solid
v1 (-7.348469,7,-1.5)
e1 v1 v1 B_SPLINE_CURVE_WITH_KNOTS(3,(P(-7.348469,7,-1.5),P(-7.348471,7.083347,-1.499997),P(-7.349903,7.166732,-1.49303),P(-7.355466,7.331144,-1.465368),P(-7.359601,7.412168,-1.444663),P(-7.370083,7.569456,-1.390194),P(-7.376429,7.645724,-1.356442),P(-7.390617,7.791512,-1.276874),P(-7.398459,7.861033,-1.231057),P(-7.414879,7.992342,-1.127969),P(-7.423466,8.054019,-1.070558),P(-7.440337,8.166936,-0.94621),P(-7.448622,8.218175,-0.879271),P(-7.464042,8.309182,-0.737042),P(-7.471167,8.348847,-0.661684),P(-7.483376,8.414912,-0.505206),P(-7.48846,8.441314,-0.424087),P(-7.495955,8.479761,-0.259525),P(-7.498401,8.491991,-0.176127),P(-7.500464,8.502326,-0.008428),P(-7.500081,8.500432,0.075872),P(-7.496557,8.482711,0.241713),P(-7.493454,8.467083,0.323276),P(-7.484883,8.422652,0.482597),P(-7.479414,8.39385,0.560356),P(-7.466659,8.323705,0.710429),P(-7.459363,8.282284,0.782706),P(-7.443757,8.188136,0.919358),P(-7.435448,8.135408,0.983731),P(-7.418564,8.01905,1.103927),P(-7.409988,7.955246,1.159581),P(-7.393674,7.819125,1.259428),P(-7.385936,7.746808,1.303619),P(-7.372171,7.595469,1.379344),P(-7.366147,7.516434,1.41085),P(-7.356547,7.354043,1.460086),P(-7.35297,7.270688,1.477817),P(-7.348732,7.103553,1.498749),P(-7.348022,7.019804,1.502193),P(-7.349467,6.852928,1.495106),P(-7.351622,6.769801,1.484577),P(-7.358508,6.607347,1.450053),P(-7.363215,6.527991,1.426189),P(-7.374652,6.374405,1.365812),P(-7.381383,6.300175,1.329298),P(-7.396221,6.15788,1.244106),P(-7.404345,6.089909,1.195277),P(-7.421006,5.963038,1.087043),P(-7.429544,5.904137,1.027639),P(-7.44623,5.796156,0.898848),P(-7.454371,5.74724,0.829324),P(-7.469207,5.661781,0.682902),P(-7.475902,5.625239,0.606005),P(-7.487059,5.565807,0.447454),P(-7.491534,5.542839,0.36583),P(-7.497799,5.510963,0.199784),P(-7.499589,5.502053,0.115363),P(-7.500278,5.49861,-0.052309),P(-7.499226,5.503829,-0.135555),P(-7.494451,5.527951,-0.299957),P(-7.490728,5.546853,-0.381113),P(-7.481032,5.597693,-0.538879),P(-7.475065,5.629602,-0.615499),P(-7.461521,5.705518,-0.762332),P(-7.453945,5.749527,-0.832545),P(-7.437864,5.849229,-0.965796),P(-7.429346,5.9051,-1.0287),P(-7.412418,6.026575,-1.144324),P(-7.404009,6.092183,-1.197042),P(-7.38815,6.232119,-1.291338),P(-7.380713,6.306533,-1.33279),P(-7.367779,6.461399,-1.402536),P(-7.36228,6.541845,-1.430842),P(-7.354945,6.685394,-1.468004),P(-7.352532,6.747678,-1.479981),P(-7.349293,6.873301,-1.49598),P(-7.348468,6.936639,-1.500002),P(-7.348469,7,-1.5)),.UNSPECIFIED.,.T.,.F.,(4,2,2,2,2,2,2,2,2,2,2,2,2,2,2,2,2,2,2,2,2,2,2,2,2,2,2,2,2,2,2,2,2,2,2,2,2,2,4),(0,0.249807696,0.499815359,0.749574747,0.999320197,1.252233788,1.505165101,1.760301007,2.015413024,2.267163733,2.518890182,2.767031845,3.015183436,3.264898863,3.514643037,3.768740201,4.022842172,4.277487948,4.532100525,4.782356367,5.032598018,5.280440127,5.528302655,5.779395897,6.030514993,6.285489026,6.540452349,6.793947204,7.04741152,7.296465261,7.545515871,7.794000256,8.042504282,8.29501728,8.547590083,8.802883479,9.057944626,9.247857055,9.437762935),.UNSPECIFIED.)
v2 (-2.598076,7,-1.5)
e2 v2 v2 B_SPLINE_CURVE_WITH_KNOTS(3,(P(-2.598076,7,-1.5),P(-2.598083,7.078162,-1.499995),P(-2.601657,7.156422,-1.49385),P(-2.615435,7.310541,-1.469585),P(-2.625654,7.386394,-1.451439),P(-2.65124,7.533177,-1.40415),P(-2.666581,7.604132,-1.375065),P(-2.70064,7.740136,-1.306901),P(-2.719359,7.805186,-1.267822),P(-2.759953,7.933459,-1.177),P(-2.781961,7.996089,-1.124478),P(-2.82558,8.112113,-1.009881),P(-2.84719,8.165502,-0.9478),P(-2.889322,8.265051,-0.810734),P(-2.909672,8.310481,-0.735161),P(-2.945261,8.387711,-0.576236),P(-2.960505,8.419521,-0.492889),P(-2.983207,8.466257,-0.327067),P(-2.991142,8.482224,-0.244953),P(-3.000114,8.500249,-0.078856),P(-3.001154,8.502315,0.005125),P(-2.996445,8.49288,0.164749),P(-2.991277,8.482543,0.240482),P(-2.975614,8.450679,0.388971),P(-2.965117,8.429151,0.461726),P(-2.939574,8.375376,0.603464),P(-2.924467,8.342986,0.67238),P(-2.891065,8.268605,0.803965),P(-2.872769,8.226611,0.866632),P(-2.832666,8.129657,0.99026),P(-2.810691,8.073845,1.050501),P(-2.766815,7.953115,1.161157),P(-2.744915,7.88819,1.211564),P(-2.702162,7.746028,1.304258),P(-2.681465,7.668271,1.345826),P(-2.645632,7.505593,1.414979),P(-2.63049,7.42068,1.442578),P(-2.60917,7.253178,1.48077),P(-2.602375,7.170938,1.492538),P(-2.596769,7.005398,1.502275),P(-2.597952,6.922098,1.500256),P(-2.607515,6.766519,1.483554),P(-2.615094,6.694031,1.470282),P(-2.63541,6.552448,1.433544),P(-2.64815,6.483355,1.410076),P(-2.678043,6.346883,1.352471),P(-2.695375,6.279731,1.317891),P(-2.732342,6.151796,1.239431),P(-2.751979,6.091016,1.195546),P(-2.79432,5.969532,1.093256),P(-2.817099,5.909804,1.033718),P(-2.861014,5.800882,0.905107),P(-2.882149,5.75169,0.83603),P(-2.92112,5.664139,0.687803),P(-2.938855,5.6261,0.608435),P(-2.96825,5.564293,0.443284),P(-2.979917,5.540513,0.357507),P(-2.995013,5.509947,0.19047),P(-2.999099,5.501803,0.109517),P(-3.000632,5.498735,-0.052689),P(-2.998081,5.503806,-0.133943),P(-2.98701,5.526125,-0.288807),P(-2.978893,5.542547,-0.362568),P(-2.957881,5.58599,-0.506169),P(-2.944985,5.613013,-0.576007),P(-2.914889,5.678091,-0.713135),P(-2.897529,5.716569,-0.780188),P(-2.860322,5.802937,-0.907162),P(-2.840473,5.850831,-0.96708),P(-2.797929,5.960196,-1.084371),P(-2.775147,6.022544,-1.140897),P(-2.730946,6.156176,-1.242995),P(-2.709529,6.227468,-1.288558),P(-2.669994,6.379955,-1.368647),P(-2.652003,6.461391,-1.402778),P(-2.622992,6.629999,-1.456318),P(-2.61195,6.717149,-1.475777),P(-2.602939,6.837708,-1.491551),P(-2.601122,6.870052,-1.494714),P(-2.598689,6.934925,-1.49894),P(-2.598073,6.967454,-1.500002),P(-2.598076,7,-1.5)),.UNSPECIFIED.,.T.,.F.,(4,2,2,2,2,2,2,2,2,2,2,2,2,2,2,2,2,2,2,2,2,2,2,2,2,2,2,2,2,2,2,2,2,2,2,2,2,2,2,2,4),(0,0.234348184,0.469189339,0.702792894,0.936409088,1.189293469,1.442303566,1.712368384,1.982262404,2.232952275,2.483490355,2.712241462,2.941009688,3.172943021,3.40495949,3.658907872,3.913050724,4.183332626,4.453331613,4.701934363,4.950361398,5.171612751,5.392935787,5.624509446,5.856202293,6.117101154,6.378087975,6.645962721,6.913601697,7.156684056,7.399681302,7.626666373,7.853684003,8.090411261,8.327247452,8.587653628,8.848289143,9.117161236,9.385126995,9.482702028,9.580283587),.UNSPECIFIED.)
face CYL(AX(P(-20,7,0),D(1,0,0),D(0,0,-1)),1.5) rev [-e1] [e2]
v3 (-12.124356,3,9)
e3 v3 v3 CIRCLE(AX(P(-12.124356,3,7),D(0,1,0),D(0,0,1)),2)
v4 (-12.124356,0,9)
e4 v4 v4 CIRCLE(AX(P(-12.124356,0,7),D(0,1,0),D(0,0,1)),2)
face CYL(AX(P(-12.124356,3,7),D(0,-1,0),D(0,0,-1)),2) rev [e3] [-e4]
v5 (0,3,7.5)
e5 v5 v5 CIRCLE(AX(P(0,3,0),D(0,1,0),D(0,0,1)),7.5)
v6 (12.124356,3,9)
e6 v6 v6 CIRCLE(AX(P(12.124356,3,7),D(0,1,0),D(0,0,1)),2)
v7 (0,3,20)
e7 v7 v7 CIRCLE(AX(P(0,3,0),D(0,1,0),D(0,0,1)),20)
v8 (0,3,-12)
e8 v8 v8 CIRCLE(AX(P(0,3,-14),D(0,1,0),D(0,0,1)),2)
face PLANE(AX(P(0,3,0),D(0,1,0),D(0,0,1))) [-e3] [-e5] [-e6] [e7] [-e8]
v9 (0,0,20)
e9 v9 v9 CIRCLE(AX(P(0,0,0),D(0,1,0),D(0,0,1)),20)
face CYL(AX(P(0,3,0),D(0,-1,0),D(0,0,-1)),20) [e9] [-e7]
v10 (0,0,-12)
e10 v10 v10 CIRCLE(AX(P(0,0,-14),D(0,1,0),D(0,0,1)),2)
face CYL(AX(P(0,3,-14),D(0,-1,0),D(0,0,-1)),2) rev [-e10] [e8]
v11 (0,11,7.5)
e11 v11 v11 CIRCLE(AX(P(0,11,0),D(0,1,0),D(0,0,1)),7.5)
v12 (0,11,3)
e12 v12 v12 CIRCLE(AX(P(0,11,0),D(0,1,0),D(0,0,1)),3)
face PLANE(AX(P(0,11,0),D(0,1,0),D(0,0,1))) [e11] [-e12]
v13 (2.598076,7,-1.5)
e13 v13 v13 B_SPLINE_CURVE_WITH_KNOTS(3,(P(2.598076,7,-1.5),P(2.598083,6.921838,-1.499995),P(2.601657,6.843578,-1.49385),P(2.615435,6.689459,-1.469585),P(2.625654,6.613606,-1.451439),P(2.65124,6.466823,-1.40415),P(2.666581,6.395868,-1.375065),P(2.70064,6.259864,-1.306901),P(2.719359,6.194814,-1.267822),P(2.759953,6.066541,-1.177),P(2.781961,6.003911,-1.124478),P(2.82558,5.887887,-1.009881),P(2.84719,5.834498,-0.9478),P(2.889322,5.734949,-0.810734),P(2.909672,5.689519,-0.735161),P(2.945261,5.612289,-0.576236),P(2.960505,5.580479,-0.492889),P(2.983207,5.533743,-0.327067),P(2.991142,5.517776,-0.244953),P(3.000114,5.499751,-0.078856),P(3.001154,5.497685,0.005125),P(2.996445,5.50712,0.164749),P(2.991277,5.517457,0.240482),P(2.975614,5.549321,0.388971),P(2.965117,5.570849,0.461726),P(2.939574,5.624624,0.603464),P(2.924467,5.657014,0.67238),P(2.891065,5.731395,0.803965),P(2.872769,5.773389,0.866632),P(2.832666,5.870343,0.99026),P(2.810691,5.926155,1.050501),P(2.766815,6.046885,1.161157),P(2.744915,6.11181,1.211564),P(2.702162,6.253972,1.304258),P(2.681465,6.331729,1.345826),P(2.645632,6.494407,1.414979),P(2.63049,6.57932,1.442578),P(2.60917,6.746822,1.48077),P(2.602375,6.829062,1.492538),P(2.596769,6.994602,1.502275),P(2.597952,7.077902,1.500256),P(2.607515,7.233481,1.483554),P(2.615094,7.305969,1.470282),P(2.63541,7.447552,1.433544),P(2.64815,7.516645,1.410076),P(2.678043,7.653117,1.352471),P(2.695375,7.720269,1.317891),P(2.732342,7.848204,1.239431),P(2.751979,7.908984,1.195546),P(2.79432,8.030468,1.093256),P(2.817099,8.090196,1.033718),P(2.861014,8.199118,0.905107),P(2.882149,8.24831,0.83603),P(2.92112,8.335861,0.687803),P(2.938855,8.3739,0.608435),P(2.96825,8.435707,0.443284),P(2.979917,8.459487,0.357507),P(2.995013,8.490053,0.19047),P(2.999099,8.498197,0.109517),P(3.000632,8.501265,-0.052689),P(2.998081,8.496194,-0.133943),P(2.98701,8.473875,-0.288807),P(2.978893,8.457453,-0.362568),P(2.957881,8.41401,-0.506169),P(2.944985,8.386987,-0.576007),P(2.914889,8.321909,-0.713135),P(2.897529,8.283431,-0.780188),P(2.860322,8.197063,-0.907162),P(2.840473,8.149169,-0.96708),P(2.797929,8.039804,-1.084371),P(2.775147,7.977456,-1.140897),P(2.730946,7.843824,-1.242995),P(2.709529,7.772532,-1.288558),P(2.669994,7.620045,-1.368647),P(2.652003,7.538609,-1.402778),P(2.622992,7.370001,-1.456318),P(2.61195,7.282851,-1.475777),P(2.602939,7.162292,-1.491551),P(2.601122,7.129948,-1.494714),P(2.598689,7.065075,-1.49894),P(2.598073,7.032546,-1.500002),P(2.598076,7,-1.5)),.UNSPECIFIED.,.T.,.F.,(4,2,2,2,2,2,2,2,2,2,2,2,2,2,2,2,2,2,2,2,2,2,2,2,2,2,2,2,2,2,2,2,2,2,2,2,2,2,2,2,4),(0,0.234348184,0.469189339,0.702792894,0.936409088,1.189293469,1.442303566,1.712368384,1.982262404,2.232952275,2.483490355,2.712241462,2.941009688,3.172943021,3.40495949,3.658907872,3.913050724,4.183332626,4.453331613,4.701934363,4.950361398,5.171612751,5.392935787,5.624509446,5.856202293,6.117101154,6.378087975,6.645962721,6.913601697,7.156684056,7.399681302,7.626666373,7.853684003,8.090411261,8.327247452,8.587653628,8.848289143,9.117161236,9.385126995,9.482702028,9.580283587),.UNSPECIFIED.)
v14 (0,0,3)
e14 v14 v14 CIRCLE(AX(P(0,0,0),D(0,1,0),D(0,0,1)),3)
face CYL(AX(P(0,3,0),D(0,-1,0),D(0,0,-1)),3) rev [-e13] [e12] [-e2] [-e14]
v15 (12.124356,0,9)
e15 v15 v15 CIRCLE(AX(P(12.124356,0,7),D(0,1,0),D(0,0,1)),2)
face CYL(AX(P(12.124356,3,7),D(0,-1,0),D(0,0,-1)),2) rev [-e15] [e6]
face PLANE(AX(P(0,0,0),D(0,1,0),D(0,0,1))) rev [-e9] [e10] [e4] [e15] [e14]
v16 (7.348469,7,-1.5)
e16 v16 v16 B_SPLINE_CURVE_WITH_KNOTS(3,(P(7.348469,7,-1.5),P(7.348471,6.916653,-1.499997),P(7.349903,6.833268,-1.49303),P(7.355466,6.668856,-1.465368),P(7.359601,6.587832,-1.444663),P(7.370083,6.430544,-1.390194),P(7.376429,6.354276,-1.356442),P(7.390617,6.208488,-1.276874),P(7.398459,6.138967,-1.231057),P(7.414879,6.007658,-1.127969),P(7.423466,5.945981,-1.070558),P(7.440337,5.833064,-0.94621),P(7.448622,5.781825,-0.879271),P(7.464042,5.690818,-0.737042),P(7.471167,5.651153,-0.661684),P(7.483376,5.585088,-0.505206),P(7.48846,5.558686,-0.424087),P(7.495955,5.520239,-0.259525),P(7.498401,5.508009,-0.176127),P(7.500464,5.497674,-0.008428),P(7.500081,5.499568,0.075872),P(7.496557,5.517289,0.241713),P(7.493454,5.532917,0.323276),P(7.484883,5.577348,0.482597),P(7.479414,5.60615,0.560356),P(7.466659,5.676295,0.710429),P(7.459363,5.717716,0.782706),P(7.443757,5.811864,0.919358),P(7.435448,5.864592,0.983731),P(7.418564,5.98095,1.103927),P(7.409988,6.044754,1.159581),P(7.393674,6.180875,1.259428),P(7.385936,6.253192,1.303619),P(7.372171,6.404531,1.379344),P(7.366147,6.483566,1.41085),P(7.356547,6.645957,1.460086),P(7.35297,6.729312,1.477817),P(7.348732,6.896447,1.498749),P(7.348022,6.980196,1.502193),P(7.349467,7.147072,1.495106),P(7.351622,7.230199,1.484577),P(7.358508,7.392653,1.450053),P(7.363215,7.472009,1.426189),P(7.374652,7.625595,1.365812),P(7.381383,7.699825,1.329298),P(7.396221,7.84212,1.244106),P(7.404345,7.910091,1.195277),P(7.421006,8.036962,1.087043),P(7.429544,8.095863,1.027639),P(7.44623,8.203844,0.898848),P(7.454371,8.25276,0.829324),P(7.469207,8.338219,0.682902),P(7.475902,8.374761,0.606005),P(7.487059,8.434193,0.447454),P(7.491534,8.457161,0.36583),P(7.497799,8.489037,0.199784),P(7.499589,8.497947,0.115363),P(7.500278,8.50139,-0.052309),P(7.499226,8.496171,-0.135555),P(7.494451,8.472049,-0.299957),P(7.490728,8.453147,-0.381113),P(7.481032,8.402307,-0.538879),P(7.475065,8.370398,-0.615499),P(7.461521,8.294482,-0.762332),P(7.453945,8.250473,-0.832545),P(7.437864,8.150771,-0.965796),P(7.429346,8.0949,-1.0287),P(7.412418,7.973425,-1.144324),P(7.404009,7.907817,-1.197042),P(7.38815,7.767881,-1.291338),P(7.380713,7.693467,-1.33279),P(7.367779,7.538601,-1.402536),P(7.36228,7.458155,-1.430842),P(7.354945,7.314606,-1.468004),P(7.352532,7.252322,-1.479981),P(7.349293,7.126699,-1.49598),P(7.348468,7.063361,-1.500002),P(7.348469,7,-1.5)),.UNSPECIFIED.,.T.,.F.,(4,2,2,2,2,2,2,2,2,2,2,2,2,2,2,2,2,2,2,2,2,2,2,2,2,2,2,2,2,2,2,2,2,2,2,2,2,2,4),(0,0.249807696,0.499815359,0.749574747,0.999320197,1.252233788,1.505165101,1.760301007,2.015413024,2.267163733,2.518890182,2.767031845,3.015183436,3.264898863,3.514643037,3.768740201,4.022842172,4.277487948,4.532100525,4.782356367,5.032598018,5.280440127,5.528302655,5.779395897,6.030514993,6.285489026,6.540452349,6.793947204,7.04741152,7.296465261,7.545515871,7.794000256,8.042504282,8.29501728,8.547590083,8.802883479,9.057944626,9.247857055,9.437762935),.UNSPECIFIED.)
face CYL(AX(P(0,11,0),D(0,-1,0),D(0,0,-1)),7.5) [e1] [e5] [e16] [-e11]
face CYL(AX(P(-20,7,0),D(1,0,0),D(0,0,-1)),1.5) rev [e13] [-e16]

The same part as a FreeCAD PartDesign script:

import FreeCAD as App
import Part
import Sketcher
from FreeCAD import Vector

doc = App.newDocument("Part")
params = doc.addObject("Spreadsheet::Sheet", "Params")
for row, (alias, value) in enumerate([
    ("sketch1_diameter", "40 mm"),
    ("sketch1_diameter2", "4 mm"),
    ("sketch1_diameter3", "6 mm"),
    ("pad1_length", "3 mm"),
    ("sketch2_diameter", "15 mm"),
    ("sketch2_diameter2", "6 mm"),
    ("pad2_length", "8 mm"),
    ("sketch3_diameter", "3 mm"),
], start=1):
    params.set(f"A{row}", alias)
    params.set(f"B{row}", "=" + value)
    params.setAlias(f"B{row}", alias)

body = doc.addObject("PartDesign::Body", "Body")

# Sketch on XZ plane
sketch1 = body.newObject("Sketcher::SketchObject", "Sketch")
sketch1.AttachmentSupport = (doc.getObject("XZ_Plane"), [""])
sketch1.MapMode = "FlatFace"
sketch1.addGeometry(Part.Circle(Vector(0, 0, 0), Vector(0, 0, 1), 20), False)
sketch1.addGeometry(Part.Circle(Vector(0, -14, 0), Vector(0, 0, 1), 2), False)
sketch1.addGeometry(Part.Circle(Vector(-12.1, 7, 0), Vector(0, 0, 1), 2), False)
sketch1.addGeometry(Part.Circle(Vector(0, 0, 0), Vector(0, 0, 1), 3), False)
sketch1.addGeometry(Part.Circle(Vector(12.1, 7, 0), Vector(0, 0, 1), 2), False)
sketch1.addConstraint(Sketcher.Constraint("Coincident", 0, 3, -1, 1))
sketch1.addConstraint(Sketcher.Constraint("Coincident", 3, 3, -1, 1))
sketch1.addConstraint(Sketcher.Constraint("Equal", 1, 2))
sketch1.addConstraint(Sketcher.Constraint("Equal", 2, 4))
sketch1.addConstraint(Sketcher.Constraint("Symmetric", 2, 3, 4, 3, -2))
sketch1.addConstraint(Sketcher.Constraint("PointOnObject", 1, 3, -2))
sketch1.addConstraint(Sketcher.Constraint("Diameter", 0, 40.0))
sketch1.addConstraint(Sketcher.Constraint("Diameter", 1, 4.0))
sketch1.addConstraint(Sketcher.Constraint("Diameter", 3, 6.0))
sketch1.addConstraint(Sketcher.Constraint("DistanceY", 1, 3, -1, 1, 14.0))
sketch1.addConstraint(Sketcher.Constraint("DistanceY", -1, 1, 2, 3, 7.0))
sketch1.addConstraint(Sketcher.Constraint("DistanceX", 2, 3, 4, 3, 24.248711))
sketch1.setExpression("Constraints[6]", "Params.sketch1_diameter")
sketch1.setExpression("Constraints[7]", "Params.sketch1_diameter2")
sketch1.setExpression("Constraints[8]", "Params.sketch1_diameter3")
pad1 = body.newObject("PartDesign::Pad", "Pad")
pad1.Profile = sketch1
pad1.setExpression("Length", "Params.pad1_length")
pad1.Reversed = True

# Sketch on XZ plane
sketch2 = body.newObject("Sketcher::SketchObject", "Sketch001")
sketch2.AttachmentSupport = (doc.getObject("XZ_Plane"), [""])
sketch2.MapMode = "FlatFace"
sketch2.AttachmentOffset = App.Placement(Vector(0, 0, -3), App.Rotation())
sketch2.addGeometry(Part.Circle(Vector(0, 0, 0), Vector(0, 0, 1), 7.5), False)
sketch2.addGeometry(Part.Circle(Vector(0, 0, 0), Vector(0, 0, 1), 3), False)
sketch2.addConstraint(Sketcher.Constraint("Coincident", 0, 3, -1, 1))
sketch2.addConstraint(Sketcher.Constraint("Coincident", 1, 3, -1, 1))
sketch2.addConstraint(Sketcher.Constraint("Diameter", 0, 15.0))
sketch2.addConstraint(Sketcher.Constraint("Diameter", 1, 6.0))
sketch2.setExpression("Constraints[2]", "Params.sketch2_diameter")
sketch2.setExpression("Constraints[3]", "Params.sketch2_diameter2")
pad2 = body.newObject("PartDesign::Pad", "Pad001")
pad2.Profile = sketch2
pad2.setExpression("Length", "Params.pad2_length")
pad2.Reversed = True

# Sketch on YZ plane
sketch3 = body.newObject("Sketcher::SketchObject", "Sketch002")
sketch3.AttachmentSupport = (doc.getObject("YZ_Plane"), [""])
sketch3.MapMode = "FlatFace"
sketch3.addGeometry(Part.Circle(Vector(7, 0, 0), Vector(0, 0, 1), 1.5), False)
sketch3.addConstraint(Sketcher.Constraint("PointOnObject", 0, 3, -1))
sketch3.addConstraint(Sketcher.Constraint("Diameter", 0, 3.0))
sketch3.addConstraint(Sketcher.Constraint("DistanceX", -1, 1, 0, 3, 7.0))
sketch3.setExpression("Constraints[1]", "Params.sketch3_diameter")
pocket1 = body.newObject("PartDesign::Pocket", "Pocket")
pocket1.Profile = sketch3
pocket1.Type = "ThroughAll"
pocket1.Midplane = True

doc.recompute()
